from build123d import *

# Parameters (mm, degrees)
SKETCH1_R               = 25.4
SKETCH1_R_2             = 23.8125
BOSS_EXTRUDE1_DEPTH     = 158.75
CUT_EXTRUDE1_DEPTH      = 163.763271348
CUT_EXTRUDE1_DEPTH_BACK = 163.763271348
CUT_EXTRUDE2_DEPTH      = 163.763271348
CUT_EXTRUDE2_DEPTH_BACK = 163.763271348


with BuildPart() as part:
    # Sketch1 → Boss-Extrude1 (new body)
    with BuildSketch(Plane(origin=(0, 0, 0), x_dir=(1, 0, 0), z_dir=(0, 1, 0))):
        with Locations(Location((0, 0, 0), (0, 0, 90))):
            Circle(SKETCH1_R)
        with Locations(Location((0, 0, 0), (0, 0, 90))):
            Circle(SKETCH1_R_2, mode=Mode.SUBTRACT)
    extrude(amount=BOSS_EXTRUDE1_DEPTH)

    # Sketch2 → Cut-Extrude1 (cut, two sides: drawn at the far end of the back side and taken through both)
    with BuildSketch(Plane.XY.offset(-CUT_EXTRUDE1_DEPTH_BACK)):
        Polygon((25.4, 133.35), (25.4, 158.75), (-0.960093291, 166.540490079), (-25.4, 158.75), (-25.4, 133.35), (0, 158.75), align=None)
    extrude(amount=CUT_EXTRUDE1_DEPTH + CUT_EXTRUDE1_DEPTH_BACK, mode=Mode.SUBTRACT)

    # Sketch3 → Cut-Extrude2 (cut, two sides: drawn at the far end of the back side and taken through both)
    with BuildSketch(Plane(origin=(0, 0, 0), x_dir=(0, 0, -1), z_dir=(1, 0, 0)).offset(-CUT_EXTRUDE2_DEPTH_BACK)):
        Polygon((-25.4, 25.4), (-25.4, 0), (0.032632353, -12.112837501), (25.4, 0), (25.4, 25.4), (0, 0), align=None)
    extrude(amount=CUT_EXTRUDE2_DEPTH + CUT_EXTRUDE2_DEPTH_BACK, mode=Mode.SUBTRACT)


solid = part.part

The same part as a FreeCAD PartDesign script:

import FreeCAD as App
import Part
import Sketcher

V = App.Vector
Q = App.Units.Quantity

doc = App.newDocument("Part")
body = doc.addObject("PartDesign::Body", "Body")

# Sketch on XZ plane
sketch1 = body.newObject("Sketcher::SketchObject", "Sketch")
sketch1.AttachmentSupport = (doc.getObject("XZ_Plane"), [""])
sketch1.MapMode = "FlatFace"
sketch1.addGeometry(Part.Circle(V(0, 0, 0), V(0, 0, 1), 25.4), False)
sketch1.addGeometry(Part.Circle(V(0, 0, 0), V(0, 0, 1), 23.8125), False)
sketch1.addConstraint(Sketcher.Constraint("Coincident", 0, 3, -1, 1))
sketch1.addConstraint(Sketcher.Constraint("Coincident", 1, 3, -1, 1))
sketch1.addConstraint(Sketcher.Constraint("Diameter", 0, Q("2 in")))
sketch1.addConstraint(Sketcher.Constraint("Diameter", 1, Q("1.875 in")))
pad1 = body.newObject("PartDesign::Pad", "Pad")
pad1.Profile = sketch1
pad1.Length = Q("6.25 in")
pad1.Reversed = True

# Sketch on XY plane
sketch2 = body.newObject("Sketcher::SketchObject", "Sketch001")
sketch2.AttachmentSupport = (doc.getObject("XY_Plane"), [""])
sketch2.MapMode = "FlatFace"
sketch2.addGeometry(Part.LineSegment(V(25.4, 133.35, 0), V(25.4, 158.75, 0)), False)
sketch2.addGeometry(Part.LineSegment(V(25.4, 158.75, 0), V(-0.960093, 166.54049, 0)), False)
sketch2.addGeometry(Part.LineSegment(V(-0.960093, 166.54049, 0), V(-25.4, 158.75, 0)), False)
sketch2.addGeometry(Part.LineSegment(V(-25.4, 158.75, 0), V(-25.4, 133.35, 0)), False)
sketch2.addGeometry(Part.LineSegment(V(-25.4, 133.35, 0), V(0, 158.75, 0)), False)
sketch2.addGeometry(Part.LineSegment(V(0, 158.75, 0), V(25.4, 133.35, 0)), False)
sketch2.addConstraint(Sketcher.Constraint("Coincident", 0, 2, 1, 1))
sketch2.addConstraint(Sketcher.Constraint("Coincident", 1, 2, 2, 1))
sketch2.addConstraint(Sketcher.Constraint("Coincident", 2, 2, 3, 1))
sketch2.addConstraint(Sketcher.Constraint("Coincident", 3, 2, 4, 1))
sketch2.addConstraint(Sketcher.Constraint("Coincident", 4, 2, 5, 1))
sketch2.addConstraint(Sketcher.Constraint("Coincident", 5, 2, 0, 1))
sketch2.addConstraint(Sketcher.Constraint("Vertical", 0))
sketch2.addConstraint(Sketcher.Constraint("Vertical", 3))
sketch2.addConstraint(Sketcher.Constraint("Symmetric", 0, 2, 2, 2, -2))
sketch2.addConstraint(Sketcher.Constraint("PointOnObject", 4, 2, -2))
sketch2.addConstraint(Sketcher.Constraint("Perpendicular", 4, 5))
sketch2.addConstraint(Sketcher.Constraint("Horizontal", 2, 2, 4, 2))
sketch2.addConstraint(Sketcher.Constraint("Horizontal", 3, 2, 5, 2))
sketch2.addConstraint(Sketcher.Constraint("DistanceY", 0, 1, 0, 2, Q("1 in")))
sketch2.addConstraint(Sketcher.Constraint("DistanceY", -1, 1, 0, 2, Q("6.25 in")))
sketch2.addConstraint(Sketcher.Constraint("Distance", 1, Q("27.487202 mm")))
sketch2.addConstraint(Sketcher.Constraint("DistanceY", -1, 1, 1, 2, Q("166.54049 mm")))
pocket1 = body.newObject("PartDesign::Pocket", "Pocket")
pocket1.Profile = sketch2
pocket1.Type = "ThroughAll"
pocket1.Midplane = True

# Sketch on YZ plane
sketch3 = body.newObject("Sketcher::SketchObject", "Sketch002")
sketch3.AttachmentSupport = (doc.getObject("YZ_Plane"), [""])
sketch3.MapMode = "FlatFace"
sketch3.addGeometry(Part.LineSegment(V(25.4, 25.4, 0), V(0, 25.4, 0)), False)
sketch3.addGeometry(Part.LineSegment(V(0, 25.4, 0), V(-12.112838, -0.032632, 0)), False)
sketch3.addGeometry(Part.LineSegment(V(-12.112838, -0.032632, 0), V(0, -25.4, 0)), False)
sketch3.addGeometry(Part.LineSegment(V(0, -25.4, 0), V(25.4, -25.4, 0)), False)
sketch3.addGeometry(Part.LineSegment(V(25.4, -25.4, 0), V(0, 0, 0)), False)
sketch3.addGeometry(Part.LineSegment(V(0, 0, 0), V(25.4, 25.4, 0)), False)
sketch3.addConstraint(Sketcher.Constraint("Coincident", 0, 2, 1, 1))
sketch3.addConstraint(Sketcher.Constraint("Coincident", 1, 2, 2, 1))
sketch3.addConstraint(Sketcher.Constraint("Coincident", 2, 2, 3, 1))
sketch3.addConstraint(Sketcher.Constraint("Coincident", 3, 2, 4, 1))
sketch3.addConstraint(Sketcher.Constraint("Coincident", 4, 2, 5, 1))
sketch3.addConstraint(Sketcher.Constraint("Coincident", 5, 2, 0, 1))
sketch3.addConstraint(Sketcher.Constraint("Horizontal", 0))
sketch3.addConstraint(Sketcher.Constraint("Horizontal", 3))
sketch3.addConstraint(Sketcher.Constraint("Coincident", 4, 2, -1, 1))
sketch3.addConstraint(Sketcher.Constraint("Symmetric", 0, 2, 2, 2, -1, 1))
sketch3.addConstraint(Sketcher.Constraint("PointOnObject", 0, 2, -2))
sketch3.addConstraint(Sketcher.Constraint("Perpendicular", 4, 5))
sketch3.addConstraint(Sketcher.Constraint("Vertical", 3, 2, 5, 2))
sketch3.addConstraint(Sketcher.Constraint("DistanceX", 0, 2, 0, 1, Q("1 in")))
sketch3.addConstraint(Sketcher.Constraint("Distance", 1, Q("28.169835 mm")))
sketch3.addConstraint(Sketcher.Constraint("Distance", 2, Q("28.110926 mm")))
pocket2 = body.newObject("PartDesign::Pocket", "Pocket001")
pocket2.Profile = sketch3
pocket2.Type = "ThroughAll"
pocket2.Midplane = True

doc.recompute()
